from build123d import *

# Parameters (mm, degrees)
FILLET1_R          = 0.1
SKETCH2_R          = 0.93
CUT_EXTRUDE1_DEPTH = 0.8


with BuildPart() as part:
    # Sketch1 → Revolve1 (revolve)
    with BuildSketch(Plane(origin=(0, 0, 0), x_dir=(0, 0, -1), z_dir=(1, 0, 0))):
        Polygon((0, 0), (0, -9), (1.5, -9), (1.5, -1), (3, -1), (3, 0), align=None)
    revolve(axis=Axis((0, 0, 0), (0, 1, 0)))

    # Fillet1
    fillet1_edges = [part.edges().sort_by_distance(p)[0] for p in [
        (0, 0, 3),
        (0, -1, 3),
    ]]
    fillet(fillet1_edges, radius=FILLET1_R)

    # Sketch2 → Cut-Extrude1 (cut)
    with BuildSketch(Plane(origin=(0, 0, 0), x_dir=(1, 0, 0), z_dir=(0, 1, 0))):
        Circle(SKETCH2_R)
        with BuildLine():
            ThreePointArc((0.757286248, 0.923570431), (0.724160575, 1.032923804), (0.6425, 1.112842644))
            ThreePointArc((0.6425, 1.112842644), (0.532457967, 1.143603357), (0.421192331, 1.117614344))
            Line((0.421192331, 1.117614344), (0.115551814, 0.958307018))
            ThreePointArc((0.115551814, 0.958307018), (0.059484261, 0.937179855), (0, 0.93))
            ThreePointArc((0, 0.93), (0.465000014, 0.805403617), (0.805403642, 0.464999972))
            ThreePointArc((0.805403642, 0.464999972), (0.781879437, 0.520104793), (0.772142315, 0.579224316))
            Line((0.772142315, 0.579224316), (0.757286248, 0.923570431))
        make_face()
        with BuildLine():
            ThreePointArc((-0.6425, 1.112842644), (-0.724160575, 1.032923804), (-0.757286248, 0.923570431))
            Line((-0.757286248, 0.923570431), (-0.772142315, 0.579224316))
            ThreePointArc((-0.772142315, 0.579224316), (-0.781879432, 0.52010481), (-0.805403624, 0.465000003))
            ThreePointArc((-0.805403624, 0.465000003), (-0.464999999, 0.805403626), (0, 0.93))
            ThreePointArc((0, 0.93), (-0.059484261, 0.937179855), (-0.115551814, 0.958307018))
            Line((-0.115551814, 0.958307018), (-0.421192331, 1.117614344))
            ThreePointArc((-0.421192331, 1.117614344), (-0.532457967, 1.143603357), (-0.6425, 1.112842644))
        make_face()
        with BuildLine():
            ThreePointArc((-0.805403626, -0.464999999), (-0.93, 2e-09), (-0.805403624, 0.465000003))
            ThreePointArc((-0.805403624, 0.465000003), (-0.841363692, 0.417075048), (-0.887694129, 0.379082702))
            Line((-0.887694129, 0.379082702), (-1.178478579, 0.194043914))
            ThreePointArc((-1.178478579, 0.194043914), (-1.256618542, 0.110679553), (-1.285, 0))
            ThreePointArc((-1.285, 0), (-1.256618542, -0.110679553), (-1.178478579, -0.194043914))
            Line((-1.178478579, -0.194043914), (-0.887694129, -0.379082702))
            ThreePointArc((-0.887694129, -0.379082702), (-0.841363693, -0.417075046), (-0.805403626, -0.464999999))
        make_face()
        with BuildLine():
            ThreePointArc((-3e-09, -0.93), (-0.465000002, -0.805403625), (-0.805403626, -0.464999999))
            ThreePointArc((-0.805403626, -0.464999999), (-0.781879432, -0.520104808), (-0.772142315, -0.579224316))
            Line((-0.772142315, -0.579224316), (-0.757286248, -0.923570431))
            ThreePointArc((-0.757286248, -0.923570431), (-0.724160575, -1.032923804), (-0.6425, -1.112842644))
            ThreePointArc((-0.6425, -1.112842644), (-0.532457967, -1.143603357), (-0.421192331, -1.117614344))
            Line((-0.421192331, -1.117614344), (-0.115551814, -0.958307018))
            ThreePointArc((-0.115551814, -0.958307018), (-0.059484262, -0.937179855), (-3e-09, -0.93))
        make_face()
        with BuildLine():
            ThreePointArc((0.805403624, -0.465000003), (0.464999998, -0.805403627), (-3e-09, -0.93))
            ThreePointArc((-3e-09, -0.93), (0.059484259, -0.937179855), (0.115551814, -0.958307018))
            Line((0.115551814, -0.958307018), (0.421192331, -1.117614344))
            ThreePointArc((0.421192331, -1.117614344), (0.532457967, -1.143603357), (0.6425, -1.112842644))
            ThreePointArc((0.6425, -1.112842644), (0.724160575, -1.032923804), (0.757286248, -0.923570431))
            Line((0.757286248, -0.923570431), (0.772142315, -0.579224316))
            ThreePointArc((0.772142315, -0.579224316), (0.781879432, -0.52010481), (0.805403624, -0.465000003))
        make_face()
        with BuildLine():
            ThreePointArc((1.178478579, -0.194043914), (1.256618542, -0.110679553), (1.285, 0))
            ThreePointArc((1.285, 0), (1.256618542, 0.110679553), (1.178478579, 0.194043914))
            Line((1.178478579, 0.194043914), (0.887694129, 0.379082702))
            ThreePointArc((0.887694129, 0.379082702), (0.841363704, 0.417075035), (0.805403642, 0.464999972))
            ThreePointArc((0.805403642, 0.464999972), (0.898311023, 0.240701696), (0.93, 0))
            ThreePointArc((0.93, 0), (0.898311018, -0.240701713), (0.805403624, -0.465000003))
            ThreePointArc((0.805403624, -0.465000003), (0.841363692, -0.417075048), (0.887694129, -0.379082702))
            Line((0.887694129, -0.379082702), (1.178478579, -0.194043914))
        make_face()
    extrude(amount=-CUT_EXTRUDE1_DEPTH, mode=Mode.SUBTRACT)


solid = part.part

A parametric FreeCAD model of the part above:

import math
import FreeCAD as App
import Part
import Sketcher


def edges_at(feature, points):
    """Names of the edges that pass closest to the given points."""
    edges = feature.Shape.Edges
    near = lambda p: min(range(len(edges)), key=lambda i: edges[i].distToShape(Part.Vertex(*p))[0])
    return sorted({f"Edge{near(p) + 1}" for p in points})

doc = App.newDocument("Part")
params = doc.addObject("Spreadsheet::Sheet", "Params")
for row, (alias, value) in enumerate([
    ("sketch1_width", "9 mm"),
    ("sketch1_width2", "8 mm"),
    ("sketch1_height", "3 mm"),
    ("revolution_angle", "360 deg"),
    ("fillet_radius", "0.1 mm"),
    ("sketch2_radius", "0.25 mm"),
    ("sketch2_radius2", "0.23 mm"),
    ("pocket1_length", "0.8 mm"),
], start=1):
    params.set(f"A{row}", alias)
    params.set(f"B{row}", "=" + value)
    params.setAlias(f"B{row}", alias)

body = doc.addObject("PartDesign::Body", "Body")

# Sketch on YZ plane
sketch1 = doc.addObject("Sketcher::SketchObject", "Sketch")
body.addObject(sketch1)
sketch1.AttachmentSupport = (doc.YZ_Plane, [""])
sketch1.MapMode = "FlatFace"
sketch1.addGeometry([
    Part.LineSegment(App.Vector(0, 0, 0), App.Vector(-9, 0, 0)),  # 0
    Part.LineSegment(App.Vector(-9, 0, 0), App.Vector(-9, -1.5, 0)),  # 1
    Part.LineSegment(App.Vector(-9, -1.5, 0), App.Vector(-1, -1.5, 0)),  # 2
    Part.LineSegment(App.Vector(-1, -1.5, 0), App.Vector(-1, -3, 0)),  # 3
    Part.LineSegment(App.Vector(-1, -3, 0), App.Vector(0, -3, 0)),  # 4
    Part.LineSegment(App.Vector(0, -3, 0), App.Vector(0, 0, 0)),  # 5
], False)
sketch1.addConstraint([
    Sketcher.Constraint("Coincident", 0, 2, 1, 1),
    Sketcher.Constraint("Coincident", 1, 2, 2, 1),
    Sketcher.Constraint("Coincident", 2, 2, 3, 1),
    Sketcher.Constraint("Coincident", 3, 2, 4, 1),
    Sketcher.Constraint("Coincident", 4, 2, 5, 1),
    Sketcher.Constraint("Coincident", 5, 2, 0, 1),
    Sketcher.Constraint("Horizontal", 0),
    Sketcher.Constraint("Vertical", 1),
    Sketcher.Constraint("Horizontal", 2),
    Sketcher.Constraint("Vertical", 3),
    Sketcher.Constraint("Horizontal", 4),
    Sketcher.Constraint("Vertical", 5),
    Sketcher.Constraint("Coincident", 5, 2, -1, 1),
    Sketcher.Constraint("Equal", 1, 3),
    Sketcher.Constraint("DistanceX", 0, 2, 0, 1, 9.0),
    Sketcher.Constraint("DistanceX", 2, 1, 2, 2, 8.0),
    Sketcher.Constraint("DistanceY", 5, 1, 5, 2, 3.0),
])
sketch1.setExpression("Constraints[14]", "Params.sketch1_width")
sketch1.setExpression("Constraints[15]", "Params.sketch1_width2")
sketch1.setExpression("Constraints[16]", "Params.sketch1_height")
revolution = doc.addObject("PartDesign::Revolution", "Revolution")
body.addObject(revolution)
revolution.Profile = sketch1
revolution.ReferenceAxis = (sketch1, ["H_Axis"])
revolution.setExpression("Angle", "Params.revolution_angle")
doc.recompute()

fillet = doc.addObject("PartDesign::Fillet", "Fillet")
body.addObject(fillet)
fillet.Base = (revolution, edges_at(revolution, [(0, 0, 3), (0, -1, 3)]))
fillet.setExpression("Radius", "Params.fillet_radius")

# Sketch on XZ plane
sketch2 = doc.addObject("Sketcher::SketchObject", "Sketch001")
body.addObject(sketch2)
sketch2.AttachmentSupport = (doc.XZ_Plane, [""])
sketch2.MapMode = "FlatFace"
sketch2.addGeometry([
    Part.ArcOfCircle(Part.Circle(App.Vector(1.02, -0.59, 0), App.Vector(0, 0, 1), 0.25), math.radians(150), math.radians(178)),  # 0
    Part.LineSegment(App.Vector(0.77, -0.58, 0), App.Vector(0.76, -0.92, 0)),  # 1
    Part.ArcOfCircle(Part.Circle(App.Vector(0.53, -0.91, 0), App.Vector(0, 0, 1), 0.23), math.radians(-60), math.radians(-2)),  # 2
    Part.ArcOfCircle(Part.Circle(App.Vector(0.53, -0.91, 0), App.Vector(0, 0, 1), 0.23), math.radians(-118), math.radians(-60)),  # 3
    Part.LineSegment(App.Vector(0.42, -1.12, 0), App.Vector(0.12, -0.96, 0)),  # 4
    Part.ArcOfCircle(Part.Circle(App.Vector(0, -1.18, 0), App.Vector(0, 0, 1), 0.25), math.radians(62), math.radians(90)),  # 5
    Part.ArcOfCircle(Part.Circle(App.Vector(0, -1.18, 0), App.Vector(0, 0, 1), 0.25), math.radians(90), math.radians(118)),  # 6
    Part.LineSegment(App.Vector(-0.12, -0.96, 0), App.Vector(-0.42, -1.12, 0)),  # 7
    Part.ArcOfCircle(Part.Circle(App.Vector(-0.53, -0.91, 0), App.Vector(0, 0, 1), 0.23), math.radians(-120), math.radians(-62)),  # 8
    Part.ArcOfCircle(Part.Circle(App.Vector(-0.53, -0.91, 0), App.Vector(0, 0, 1), 0.23), math.radians(-178), math.radians(-120)),  # 9
    Part.LineSegment(App.Vector(-0.76, -0.92, 0), App.Vector(-0.77, -0.58, 0)),  # 10
    Part.ArcOfCircle(Part.Circle(App.Vector(-1.02, -0.59, 0), App.Vector(0, 0, 1), 0.25), math.radians(2), math.radians(30)),  # 11
    Part.ArcOfCircle(Part.Circle(App.Vector(-1.02, -0.59, 0), App.Vector(0, 0, 1), 0.25), math.radians(30), math.radians(58)),  # 12
    Part.LineSegment(App.Vector(-0.89, -0.38, 0), App.Vector(-1.18, -0.19, 0)),  # 13
    Part.ArcOfCircle(Part.Circle(App.Vector(-1.05, 0, 0), App.Vector(0, 0, 1), 0.23), math.radians(-180), math.radians(-122)),  # 14
    Part.ArcOfCircle(Part.Circle(App.Vector(-1.05, 0, 0), App.Vector(0, 0, 1), 0.23), math.radians(122), math.radians(180)),  # 15
    Part.LineSegment(App.Vector(-1.18, 0.19, 0), App.Vector(-0.89, 0.38, 0)),  # 16
    Part.ArcOfCircle(Part.Circle(App.Vector(-1.02, 0.59, 0), App.Vector(0, 0, 1), 0.25), math.radians(-58), math.radians(-30)),  # 17
    Part.ArcOfCircle(Part.Circle(App.Vector(-1.02, 0.59, 0), App.Vector(0, 0, 1), 0.25), math.radians(-30), math.radians(-2)),  # 18
    Part.LineSegment(App.Vector(-0.77, 0.58, 0), App.Vector(-0.76, 0.92, 0)),  # 19
    Part.ArcOfCircle(Part.Circle(App.Vector(-0.53, 0.91, 0), App.Vector(0, 0, 1), 0.23), math.radians(120), math.radians(178)),  # 20
    Part.ArcOfCircle(Part.Circle(App.Vector(-0.53, 0.91, 0), App.Vector(0, 0, 1), 0.23), math.radians(62), math.radians(120)),  # 21
    Part.LineSegment(App.Vector(-0.42, 1.12, 0), App.Vector(-0.12, 0.96, 0)),  # 22
    Part.ArcOfCircle(Part.Circle(App.Vector(0, 1.18, 0), App.Vector(0, 0, 1), 0.25), math.radians(-118), math.radians(-90)),  # 23
    Part.ArcOfCircle(Part.Circle(App.Vector(0, 1.18, 0), App.Vector(0, 0, 1), 0.25), math.radians(-90), math.radians(-62)),  # 24
    Part.LineSegment(App.Vector(0.12, 0.96, 0), App.Vector(0.42, 1.12, 0)),  # 25
    Part.ArcOfCircle(Part.Circle(App.Vector(0.53, 0.91, 0), App.Vector(0, 0, 1), 0.23), math.radians(60), math.radians(118)),  # 26
    Part.ArcOfCircle(Part.Circle(App.Vector(0.53, 0.91, 0), App.Vector(0, 0, 1), 0.23), math.radians(2), math.radians(60)),  # 27
    Part.LineSegment(App.Vector(0.76, 0.92, 0), App.Vector(0.77, 0.58, 0)),  # 28
    Part.ArcOfCircle(Part.Circle(App.Vector(1.02, 0.59, 0), App.Vector(0, 0, 1), 0.25), math.radians(-178), math.radians(-150)),  # 29
    Part.ArcOfCircle(Part.Circle(App.Vector(1.02, 0.59, 0), App.Vector(0, 0, 1), 0.25), math.radians(-150), math.radians(-122)),  # 30
    Part.LineSegment(App.Vector(0.89, 0.38, 0), App.Vector(1.18, 0.19, 0)),  # 31
    Part.ArcOfCircle(Part.Circle(App.Vector(1.05, 0, 0), App.Vector(0, 0, 1), 0.23), math.radians(0), math.radians(58)),  # 32
    Part.ArcOfCircle(Part.Circle(App.Vector(1.05, 0, 0), App.Vector(0, 0, 1), 0.23), math.radians(-58), math.radians(0)),  # 33
    Part.LineSegment(App.Vector(1.18, -0.19, 0), App.Vector(0.89, -0.38, 0)),  # 34
    Part.ArcOfCircle(Part.Circle(App.Vector(1.02, -0.59, 0), App.Vector(0, 0, 1), 0.25), math.radians(122), math.radians(150)),  # 35
], False)
sketch2.addConstraint([
    Sketcher.Constraint("Tangent", 0, 2, 1, 1),
    Sketcher.Constraint("Tangent", 1, 2, 2, 2),
    Sketcher.Constraint("Tangent", 2, 1, 3, 2),
    Sketcher.Constraint("Tangent", 3, 1, 4, 1),
    Sketcher.Constraint("Tangent", 4, 2, 5, 1),
    Sketcher.Constraint("Tangent", 5, 2, 6, 1),
    Sketcher.Constraint("Tangent", 6, 2, 7, 1),
    Sketcher.Constraint("Tangent", 7, 2, 8, 2),
    Sketcher.Constraint("Tangent", 8, 1, 9, 2),
    Sketcher.Constraint("Tangent", 9, 1, 10, 1),
    Sketcher.Constraint("Tangent", 10, 2, 11, 1),
    Sketcher.Constraint("Tangent", 11, 2, 12, 1),
    Sketcher.Constraint("Tangent", 12, 2, 13, 1),
    Sketcher.Constraint("Tangent", 13, 2, 14, 2),
    Sketcher.Constraint("Tangent", 14, 1, 15, 2),
    Sketcher.Constraint("Tangent", 15, 1, 16, 1),
    Sketcher.Constraint("Tangent", 16, 2, 17, 1),
    Sketcher.Constraint("Tangent", 17, 2, 18, 1),
    Sketcher.Constraint("Tangent", 18, 2, 19, 1),
    Sketcher.Constraint("Tangent", 19, 2, 20, 2),
    Sketcher.Constraint("Tangent", 20, 1, 21, 2),
    Sketcher.Constraint("Tangent", 21, 1, 22, 1),
    Sketcher.Constraint("Tangent", 22, 2, 23, 1),
    Sketcher.Constraint("Tangent", 23, 2, 24, 1),
    Sketcher.Constraint("Tangent", 24, 2, 25, 1),
    Sketcher.Constraint("Tangent", 25, 2, 26, 2),
    Sketcher.Constraint("Tangent", 26, 1, 27, 2),
    Sketcher.Constraint("Tangent", 27, 1, 28, 1),
    Sketcher.Constraint("Tangent", 28, 2, 29, 1),
    Sketcher.Constraint("Tangent", 29, 2, 30, 1),
    Sketcher.Constraint("Tangent", 30, 2, 31, 1),
    Sketcher.Constraint("Tangent", 31, 2, 32, 2),
    Sketcher.Constraint("Tangent", 32, 1, 33, 2),
    Sketcher.Constraint("Tangent", 33, 1, 34, 1),
    Sketcher.Constraint("Tangent", 34, 2, 35, 1),
    Sketcher.Constraint("Tangent", 35, 2, 0, 1),
    Sketcher.Constraint("Equal", 2, 3),
    Sketcher.Constraint("Equal", 0, 5),
    Sketcher.Constraint("Equal", 5, 6),
    Sketcher.Constraint("Equal", 3, 8),
    Sketcher.Constraint("Equal", 8, 9),
    Sketcher.Constraint("Equal", 6, 11),
    Sketcher.Constraint("Equal", 11, 12),
    Sketcher.Constraint("Equal", 9, 14),
    Sketcher.Constraint("Equal", 14, 15),
    Sketcher.Constraint("Equal", 12, 17),
    Sketcher.Constraint("Equal", 17, 18),
    Sketcher.Constraint("Equal", 15, 20),
    Sketcher.Constraint("Equal", 20, 21),
    Sketcher.Constraint("Equal", 18, 23),
    Sketcher.Constraint("Equal", 23, 24),
    Sketcher.Constraint("Equal", 21, 26),
    Sketcher.Constraint("Equal", 26, 27),
    Sketcher.Constraint("Equal", 24, 29),
    Sketcher.Constraint("Equal", 29, 30),
    Sketcher.Constraint("Equal", 27, 32),
    Sketcher.Constraint("Equal", 32, 33),
    Sketcher.Constraint("Equal", 30, 35),
    Sketcher.Constraint("Symmetric", 0, 3, 17, 3, -1, 1),
    Sketcher.Constraint("Symmetric", 2, 3, 20, 3, -1, 1),
    Sketcher.Constraint("Symmetric", 5, 3, 23, 3, -1, 1),
    Sketcher.Constraint("Symmetric", 8, 3, 26, 3, -1, 1),
    Sketcher.Constraint("Symmetric", 11, 3, 29, 3, -1, 1),
    Sketcher.Constraint("Symmetric", 14, 3, 32, 3, -1, 1),
    Sketcher.Constraint("Symmetric", 2, 3, 8, 3, -2),
    Sketcher.Constraint("Symmetric", 0, 3, 11, 3, -2),
    Sketcher.Constraint("PointOnObject", 5, 3, -2),
    Sketcher.Constraint("PointOnObject", 14, 3, -1),
    Sketcher.Constraint("PointOnObject", 5, 2, -2),
    Sketcher.Constraint("PointOnObject", 14, 1, -1),
    Sketcher.Constraint("PointOnObject", 23, 2, -2),
    Sketcher.Constraint("PointOnObject", 32, 1, -1),
    Sketcher.Constraint("Horizontal", 2, 1, 8, 1),
    Sketcher.Constraint("Horizontal", 20, 1, 26, 1),
    Sketcher.Constraint("Horizontal", 17, 2, 29, 2),
    Sketcher.Constraint("Horizontal", 11, 2, 35, 2),
    Sketcher.Constraint("Vertical", 11, 2, 17, 2),
    Sketcher.Constraint("Vertical", 8, 1, 20, 1),
    Sketcher.Constraint("Equal", 1, 4),
    Sketcher.Constraint("Equal", 10, 13),
    Sketcher.Constraint("Radius", 0, 0.25),
    Sketcher.Constraint("Radius", 2, 0.23),
    Sketcher.Constraint("DistanceY", 0, 3, -1, 1, 0.59),
    Sketcher.Constraint("DistanceY", 5, 3, -1, 1, 1.18),
    Sketcher.Constraint("DistanceX", 14, 3, -1, 1, 1.055),
    Sketcher.Constraint("DistanceY", 11, 2, -1, 1, 0.465),
    Sketcher.Constraint("DistanceX", 8, 3, 2, 3, 1.055),
    Sketcher.Constraint("DistanceX", 3, 3, 2, 1, 0.115),
])
sketch2.setExpression("Constraints[80]", "Params.sketch2_radius")
sketch2.setExpression("Constraints[81]", "Params.sketch2_radius2")
pocket1 = doc.addObject("PartDesign::Pocket", "Pocket")
body.addObject(pocket1)
pocket1.Profile = sketch2
pocket1.setExpression("Length", "Params.pocket1_length")
pocket1.Reversed = True

doc.recompute()
